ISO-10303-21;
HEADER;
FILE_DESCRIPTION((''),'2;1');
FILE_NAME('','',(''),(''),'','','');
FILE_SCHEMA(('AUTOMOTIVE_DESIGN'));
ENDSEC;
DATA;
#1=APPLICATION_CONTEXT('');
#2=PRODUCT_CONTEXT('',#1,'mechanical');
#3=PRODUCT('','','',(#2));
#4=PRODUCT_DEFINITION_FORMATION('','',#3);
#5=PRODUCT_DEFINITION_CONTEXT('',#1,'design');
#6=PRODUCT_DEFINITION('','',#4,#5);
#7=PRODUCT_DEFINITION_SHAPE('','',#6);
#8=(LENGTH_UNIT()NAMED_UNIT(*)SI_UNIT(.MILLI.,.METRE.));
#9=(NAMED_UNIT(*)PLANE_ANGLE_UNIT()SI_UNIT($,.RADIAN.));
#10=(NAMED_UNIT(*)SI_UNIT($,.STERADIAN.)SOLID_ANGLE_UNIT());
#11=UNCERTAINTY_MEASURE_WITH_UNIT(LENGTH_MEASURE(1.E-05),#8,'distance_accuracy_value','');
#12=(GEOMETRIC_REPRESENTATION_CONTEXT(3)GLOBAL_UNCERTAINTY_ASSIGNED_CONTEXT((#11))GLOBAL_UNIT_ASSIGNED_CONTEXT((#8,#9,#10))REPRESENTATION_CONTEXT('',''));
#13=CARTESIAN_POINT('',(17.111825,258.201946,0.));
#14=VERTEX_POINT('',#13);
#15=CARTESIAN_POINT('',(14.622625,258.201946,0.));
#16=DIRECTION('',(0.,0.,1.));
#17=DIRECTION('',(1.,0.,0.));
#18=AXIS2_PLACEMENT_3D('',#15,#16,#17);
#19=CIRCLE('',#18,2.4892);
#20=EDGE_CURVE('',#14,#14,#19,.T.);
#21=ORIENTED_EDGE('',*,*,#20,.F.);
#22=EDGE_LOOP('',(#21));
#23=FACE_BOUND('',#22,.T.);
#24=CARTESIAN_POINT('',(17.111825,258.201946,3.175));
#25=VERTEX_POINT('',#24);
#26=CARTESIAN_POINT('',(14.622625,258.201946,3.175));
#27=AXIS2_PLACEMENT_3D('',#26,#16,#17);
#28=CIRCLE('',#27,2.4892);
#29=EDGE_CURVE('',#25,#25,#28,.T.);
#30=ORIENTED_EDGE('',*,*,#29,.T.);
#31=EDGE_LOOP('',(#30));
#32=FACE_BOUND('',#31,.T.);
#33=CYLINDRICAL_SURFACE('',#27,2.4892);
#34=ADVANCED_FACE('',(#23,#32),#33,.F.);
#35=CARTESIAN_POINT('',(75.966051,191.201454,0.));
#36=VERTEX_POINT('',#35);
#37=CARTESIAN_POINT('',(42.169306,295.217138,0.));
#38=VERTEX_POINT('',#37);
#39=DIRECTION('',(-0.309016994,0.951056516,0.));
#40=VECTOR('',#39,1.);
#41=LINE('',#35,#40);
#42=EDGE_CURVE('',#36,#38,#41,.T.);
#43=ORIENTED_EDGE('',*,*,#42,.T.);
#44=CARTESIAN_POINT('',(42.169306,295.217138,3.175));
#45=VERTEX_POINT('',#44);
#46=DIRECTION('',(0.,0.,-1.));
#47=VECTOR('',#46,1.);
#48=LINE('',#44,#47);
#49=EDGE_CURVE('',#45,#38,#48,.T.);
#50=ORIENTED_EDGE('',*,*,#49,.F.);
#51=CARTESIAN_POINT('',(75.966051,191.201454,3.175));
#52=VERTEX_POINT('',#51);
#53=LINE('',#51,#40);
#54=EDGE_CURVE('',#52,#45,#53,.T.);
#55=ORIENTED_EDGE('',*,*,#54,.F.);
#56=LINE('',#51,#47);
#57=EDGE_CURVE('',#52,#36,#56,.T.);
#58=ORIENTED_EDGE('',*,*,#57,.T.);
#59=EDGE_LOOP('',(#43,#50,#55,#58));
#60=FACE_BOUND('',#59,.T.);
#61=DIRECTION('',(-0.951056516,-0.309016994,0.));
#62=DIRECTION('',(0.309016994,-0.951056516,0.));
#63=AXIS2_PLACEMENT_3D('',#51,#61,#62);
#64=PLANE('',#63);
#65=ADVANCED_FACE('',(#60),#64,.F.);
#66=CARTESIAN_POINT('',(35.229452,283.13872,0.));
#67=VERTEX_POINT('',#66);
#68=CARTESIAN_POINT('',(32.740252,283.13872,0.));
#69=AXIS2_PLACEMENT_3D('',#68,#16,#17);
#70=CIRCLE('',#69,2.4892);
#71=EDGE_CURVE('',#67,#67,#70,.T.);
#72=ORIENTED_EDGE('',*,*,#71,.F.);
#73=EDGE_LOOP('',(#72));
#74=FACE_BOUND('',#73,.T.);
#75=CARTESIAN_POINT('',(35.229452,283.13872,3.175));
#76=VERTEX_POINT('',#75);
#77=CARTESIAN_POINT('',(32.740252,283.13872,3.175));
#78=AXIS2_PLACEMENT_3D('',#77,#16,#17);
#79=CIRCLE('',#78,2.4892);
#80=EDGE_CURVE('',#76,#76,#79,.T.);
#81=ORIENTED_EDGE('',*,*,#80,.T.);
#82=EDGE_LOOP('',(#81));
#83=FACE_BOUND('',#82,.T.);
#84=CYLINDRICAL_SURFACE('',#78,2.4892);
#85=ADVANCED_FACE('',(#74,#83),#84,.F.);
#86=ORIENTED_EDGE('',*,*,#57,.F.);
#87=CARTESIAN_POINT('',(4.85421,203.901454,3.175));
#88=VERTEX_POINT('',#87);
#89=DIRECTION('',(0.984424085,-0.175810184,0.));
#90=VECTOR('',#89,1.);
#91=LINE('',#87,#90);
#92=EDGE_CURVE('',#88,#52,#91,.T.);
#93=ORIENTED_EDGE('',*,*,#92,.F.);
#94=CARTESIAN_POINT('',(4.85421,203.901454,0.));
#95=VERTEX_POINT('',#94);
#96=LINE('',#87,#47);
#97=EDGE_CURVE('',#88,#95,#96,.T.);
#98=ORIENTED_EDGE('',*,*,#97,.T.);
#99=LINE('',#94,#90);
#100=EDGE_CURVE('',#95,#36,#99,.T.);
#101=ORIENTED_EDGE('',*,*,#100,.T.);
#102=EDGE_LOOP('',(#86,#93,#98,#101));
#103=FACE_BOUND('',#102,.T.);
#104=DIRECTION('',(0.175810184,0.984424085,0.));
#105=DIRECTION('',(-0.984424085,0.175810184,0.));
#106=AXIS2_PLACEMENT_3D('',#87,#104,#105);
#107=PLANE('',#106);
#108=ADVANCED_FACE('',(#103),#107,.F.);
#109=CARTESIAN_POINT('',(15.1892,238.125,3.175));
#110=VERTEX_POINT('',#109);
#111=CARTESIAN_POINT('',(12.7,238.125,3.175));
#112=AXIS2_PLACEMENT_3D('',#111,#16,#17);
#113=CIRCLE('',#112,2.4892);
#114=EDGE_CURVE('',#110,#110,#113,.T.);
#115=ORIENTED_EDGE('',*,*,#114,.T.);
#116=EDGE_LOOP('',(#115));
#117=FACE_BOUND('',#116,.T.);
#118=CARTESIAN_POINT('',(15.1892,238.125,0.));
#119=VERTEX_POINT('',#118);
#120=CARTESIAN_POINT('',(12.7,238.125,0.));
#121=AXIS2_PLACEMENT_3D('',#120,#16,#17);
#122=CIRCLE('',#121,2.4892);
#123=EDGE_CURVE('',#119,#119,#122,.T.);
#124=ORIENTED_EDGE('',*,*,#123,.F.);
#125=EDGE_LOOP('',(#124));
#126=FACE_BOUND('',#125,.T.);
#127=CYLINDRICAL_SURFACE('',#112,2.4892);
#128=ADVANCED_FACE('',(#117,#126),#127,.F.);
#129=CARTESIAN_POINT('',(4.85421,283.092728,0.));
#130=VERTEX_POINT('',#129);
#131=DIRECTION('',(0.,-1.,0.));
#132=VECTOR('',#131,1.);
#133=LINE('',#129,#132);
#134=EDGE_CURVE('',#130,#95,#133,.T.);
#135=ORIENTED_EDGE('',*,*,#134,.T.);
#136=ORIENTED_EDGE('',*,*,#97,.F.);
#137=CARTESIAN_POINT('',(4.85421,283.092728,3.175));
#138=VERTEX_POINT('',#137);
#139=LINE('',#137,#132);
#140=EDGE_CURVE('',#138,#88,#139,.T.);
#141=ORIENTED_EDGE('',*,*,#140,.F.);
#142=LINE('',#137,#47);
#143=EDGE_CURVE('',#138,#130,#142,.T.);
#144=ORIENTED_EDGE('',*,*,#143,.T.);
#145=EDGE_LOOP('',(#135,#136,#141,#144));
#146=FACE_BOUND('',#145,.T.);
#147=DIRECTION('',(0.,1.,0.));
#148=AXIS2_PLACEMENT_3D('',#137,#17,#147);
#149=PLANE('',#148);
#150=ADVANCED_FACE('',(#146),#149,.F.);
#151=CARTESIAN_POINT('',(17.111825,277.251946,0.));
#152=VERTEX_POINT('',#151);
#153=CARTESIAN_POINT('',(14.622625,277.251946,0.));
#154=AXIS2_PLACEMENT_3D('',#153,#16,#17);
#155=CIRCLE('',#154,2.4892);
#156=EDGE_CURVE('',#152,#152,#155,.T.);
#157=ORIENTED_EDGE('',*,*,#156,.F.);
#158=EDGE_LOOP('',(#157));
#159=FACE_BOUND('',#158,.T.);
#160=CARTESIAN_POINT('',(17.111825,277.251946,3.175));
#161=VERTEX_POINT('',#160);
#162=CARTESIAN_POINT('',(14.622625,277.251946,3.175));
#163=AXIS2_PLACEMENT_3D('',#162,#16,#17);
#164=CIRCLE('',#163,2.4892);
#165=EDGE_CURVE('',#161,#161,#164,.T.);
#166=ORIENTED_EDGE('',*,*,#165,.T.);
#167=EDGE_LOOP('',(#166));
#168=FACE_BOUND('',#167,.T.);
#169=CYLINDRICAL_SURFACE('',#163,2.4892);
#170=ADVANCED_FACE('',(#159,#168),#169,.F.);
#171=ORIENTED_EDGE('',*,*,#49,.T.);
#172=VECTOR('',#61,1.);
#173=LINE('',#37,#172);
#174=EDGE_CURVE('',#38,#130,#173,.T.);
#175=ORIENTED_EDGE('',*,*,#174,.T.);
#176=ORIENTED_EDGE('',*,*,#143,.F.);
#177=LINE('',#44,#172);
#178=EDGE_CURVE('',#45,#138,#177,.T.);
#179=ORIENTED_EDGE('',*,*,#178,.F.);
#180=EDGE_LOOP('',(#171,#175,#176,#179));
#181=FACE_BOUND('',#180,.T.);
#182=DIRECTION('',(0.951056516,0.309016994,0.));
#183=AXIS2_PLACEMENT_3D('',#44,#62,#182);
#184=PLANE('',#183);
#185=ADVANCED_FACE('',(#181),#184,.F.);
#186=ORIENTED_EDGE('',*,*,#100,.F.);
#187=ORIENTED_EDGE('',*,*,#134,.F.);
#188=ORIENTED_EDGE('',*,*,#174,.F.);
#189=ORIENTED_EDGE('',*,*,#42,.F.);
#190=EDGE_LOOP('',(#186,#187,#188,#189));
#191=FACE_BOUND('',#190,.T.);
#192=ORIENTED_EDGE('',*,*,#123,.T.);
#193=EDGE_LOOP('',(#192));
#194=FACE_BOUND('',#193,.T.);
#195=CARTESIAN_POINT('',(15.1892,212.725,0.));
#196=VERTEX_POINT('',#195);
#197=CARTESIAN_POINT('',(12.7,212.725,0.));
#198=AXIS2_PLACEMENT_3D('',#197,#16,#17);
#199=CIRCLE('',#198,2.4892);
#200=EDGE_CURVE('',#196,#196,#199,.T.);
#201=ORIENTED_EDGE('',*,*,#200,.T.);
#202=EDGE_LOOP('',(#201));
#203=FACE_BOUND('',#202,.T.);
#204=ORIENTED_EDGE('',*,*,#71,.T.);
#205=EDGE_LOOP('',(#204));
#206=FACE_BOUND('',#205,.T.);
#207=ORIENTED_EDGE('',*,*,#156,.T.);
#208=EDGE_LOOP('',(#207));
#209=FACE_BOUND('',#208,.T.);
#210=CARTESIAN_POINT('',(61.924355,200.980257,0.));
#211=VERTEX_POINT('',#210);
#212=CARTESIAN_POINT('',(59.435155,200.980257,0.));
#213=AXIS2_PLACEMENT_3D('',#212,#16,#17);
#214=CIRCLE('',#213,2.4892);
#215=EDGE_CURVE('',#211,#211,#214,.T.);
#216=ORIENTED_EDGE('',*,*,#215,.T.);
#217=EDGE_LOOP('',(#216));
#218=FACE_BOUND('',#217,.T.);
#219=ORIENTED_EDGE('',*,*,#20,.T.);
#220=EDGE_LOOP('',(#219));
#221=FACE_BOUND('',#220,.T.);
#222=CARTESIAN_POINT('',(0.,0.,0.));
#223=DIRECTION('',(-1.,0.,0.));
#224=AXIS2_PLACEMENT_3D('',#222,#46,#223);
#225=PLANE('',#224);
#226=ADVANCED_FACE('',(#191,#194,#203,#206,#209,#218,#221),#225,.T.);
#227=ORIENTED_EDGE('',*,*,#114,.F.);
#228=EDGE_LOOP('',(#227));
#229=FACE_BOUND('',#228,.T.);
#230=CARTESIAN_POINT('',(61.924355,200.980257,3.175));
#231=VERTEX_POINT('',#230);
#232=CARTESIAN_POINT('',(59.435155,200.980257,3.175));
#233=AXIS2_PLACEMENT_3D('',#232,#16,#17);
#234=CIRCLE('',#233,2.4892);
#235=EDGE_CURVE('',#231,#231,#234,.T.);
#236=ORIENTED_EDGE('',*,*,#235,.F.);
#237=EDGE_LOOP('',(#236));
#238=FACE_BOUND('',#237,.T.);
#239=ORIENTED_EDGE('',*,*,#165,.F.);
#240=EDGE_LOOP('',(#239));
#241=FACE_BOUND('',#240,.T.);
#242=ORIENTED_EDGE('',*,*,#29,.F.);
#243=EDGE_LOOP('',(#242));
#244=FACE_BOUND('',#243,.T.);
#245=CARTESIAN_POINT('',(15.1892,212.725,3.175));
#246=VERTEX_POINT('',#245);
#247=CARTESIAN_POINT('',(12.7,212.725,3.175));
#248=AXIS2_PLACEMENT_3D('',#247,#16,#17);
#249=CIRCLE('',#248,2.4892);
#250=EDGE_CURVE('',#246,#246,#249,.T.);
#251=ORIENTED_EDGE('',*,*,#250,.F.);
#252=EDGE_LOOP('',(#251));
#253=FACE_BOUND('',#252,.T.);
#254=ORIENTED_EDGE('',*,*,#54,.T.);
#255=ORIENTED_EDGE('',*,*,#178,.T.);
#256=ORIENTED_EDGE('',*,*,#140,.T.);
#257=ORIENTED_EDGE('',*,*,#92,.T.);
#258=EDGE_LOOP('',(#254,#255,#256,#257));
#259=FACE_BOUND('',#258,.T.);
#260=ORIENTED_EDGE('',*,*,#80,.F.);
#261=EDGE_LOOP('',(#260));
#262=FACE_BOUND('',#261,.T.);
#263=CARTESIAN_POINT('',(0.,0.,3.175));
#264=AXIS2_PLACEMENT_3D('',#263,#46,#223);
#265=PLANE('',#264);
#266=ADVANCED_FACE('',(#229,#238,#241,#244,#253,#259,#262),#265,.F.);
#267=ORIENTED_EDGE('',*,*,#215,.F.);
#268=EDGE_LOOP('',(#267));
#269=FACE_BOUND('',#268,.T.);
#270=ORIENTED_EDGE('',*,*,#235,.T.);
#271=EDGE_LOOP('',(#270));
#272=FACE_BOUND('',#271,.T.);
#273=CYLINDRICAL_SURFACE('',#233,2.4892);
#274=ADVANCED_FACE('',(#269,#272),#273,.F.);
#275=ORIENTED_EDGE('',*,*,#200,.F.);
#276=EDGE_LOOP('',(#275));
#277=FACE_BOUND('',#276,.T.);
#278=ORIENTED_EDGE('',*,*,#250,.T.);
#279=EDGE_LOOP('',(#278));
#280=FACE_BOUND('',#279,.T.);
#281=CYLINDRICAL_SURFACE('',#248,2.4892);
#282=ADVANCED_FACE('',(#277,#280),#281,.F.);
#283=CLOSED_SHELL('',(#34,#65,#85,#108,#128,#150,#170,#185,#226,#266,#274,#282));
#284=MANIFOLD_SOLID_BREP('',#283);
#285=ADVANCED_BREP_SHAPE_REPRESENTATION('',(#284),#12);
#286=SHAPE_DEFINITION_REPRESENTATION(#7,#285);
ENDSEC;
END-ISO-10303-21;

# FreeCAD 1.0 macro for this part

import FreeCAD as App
import Part
import Sketcher

V = App.Vector
Q = App.Units.Quantity


def add_polygon(sketch, points):
    """Adds a closed chain of lines whose ends are joined by coincident constraints."""
    first, n = sketch.GeometryCount, len(points)
    for a, b in zip(points, points[1:] + points[:1]):
        sketch.addGeometry(Part.LineSegment(App.Vector(*a, 0), App.Vector(*b, 0)), False)
    for i in range(n):
        sketch.addConstraint(Sketcher.Constraint("Coincident", first + i, 2, first + (i + 1) % n, 1))

doc = App.newDocument("Part")
body = doc.addObject("PartDesign::Body", "Body")

sketch1 = doc.addObject("Sketcher::SketchObject", "Sketch")
body.addObject(sketch1)
sketch1.AttachmentSupport = (doc.XY_Plane, [""])
sketch1.MapMode = "FlatFace"
add_polygon(sketch1, [(75.966051, 191.201454), (42.169306, 295.217138), (4.85421, 283.092728), (4.85421, 203.901454)])
sketch1.addConstraint(Sketcher.Constraint("Vertical", 2))
sketch1.addConstraint(Sketcher.Constraint("Perpendicular", 0, 1))
sketch1.addConstraint(Sketcher.Constraint("Angle", 0, Q("108 deg")))
sketch1.addConstraint(Sketcher.Constraint("DistanceY", 3, 2, 2, 2, Q("0.5 in")))
sketch1.addConstraint(Sketcher.Constraint("Distance", 3, Q("72.236998 mm")))
sketch1.addConstraint(Sketcher.Constraint("DistanceY", 2, 2, 2, 1, Q("79.191274 mm")))
sketch1.addConstraint(Sketcher.Constraint("DistanceX", -1, 1, 1, 2, Q("4.85421 mm")))
sketch1.addConstraint(Sketcher.Constraint("DistanceY", -1, 1, 0, 2, Q("295.217138 mm")))
pad1 = doc.addObject("PartDesign::Pad", "Pad")
body.addObject(pad1)
pad1.Profile = sketch1
pad1.Length = Q("0.125 in")

sketch2 = doc.addObject("Sketcher::SketchObject", "Sketch001")
body.addObject(sketch2)
sketch2.AttachmentSupport = (doc.XY_Plane, [""])
sketch2.MapMode = "FlatFace"
sketch2.AttachmentOffset = App.Placement(V(0, 0, 0.125 * 25.4), App.Rotation())
sketch2.addGeometry(Part.Circle(V(32.740252, 283.13872, 0), V(0, 0, 1), 2.4892), False)
sketch2.addGeometry(Part.Circle(V(59.435155, 200.980257, 0), V(0, 0, 1), 2.4892), False)
sketch2.addGeometry(Part.Circle(V(12.7, 238.125, 0), V(0, 0, 1), 2.4892), False)
sketch2.addGeometry(Part.Circle(V(12.7, 212.725, 0), V(0, 0, 1), 2.4892), False)
sketch2.addGeometry(Part.Circle(V(14.622625, 277.251946, 0), V(0, 0, 1), 2.4892), False)
sketch2.addGeometry(Part.Circle(V(14.622625, 258.201946, 0), V(0, 0, 1), 2.4892), False)
sketch2.addConstraint(Sketcher.Constraint("Equal", 0, 1))
sketch2.addConstraint(Sketcher.Constraint("Equal", 1, 2))
sketch2.addConstraint(Sketcher.Constraint("Equal", 2, 3))
sketch2.addConstraint(Sketcher.Constraint("Equal", 3, 4))
sketch2.addConstraint(Sketcher.Constraint("Equal", 4, 5))
sketch2.addConstraint(Sketcher.Constraint("Vertical", 2, 3, 3, 3))
sketch2.addConstraint(Sketcher.Constraint("Vertical", 4, 3, 5, 3))
sketch2.addConstraint(Sketcher.Constraint("Diameter", 0, Q("0.196 in")))
sketch2.addConstraint(Sketcher.Constraint("DistanceY", 3, 3, 2, 3, Q("1 in")))
sketch2.addConstraint(Sketcher.Constraint("DistanceX", -1, 1, 2, 3, Q("0.5 in")))
sketch2.addConstraint(Sketcher.Constraint("DistanceY", 5, 3, 4, 3, Q("0.75 in")))
sketch2.addConstraint(Sketcher.Constraint("DistanceY", -1, 1, 2, 3, Q("9.375 in")))
sketch2.addConstraint(Sketcher.Constraint("DistanceX", -1, 1, 0, 3, Q("32.740252 mm")))
sketch2.addConstraint(Sketcher.Constraint("DistanceY", -1, 1, 0, 3, Q("283.13872 mm")))
sketch2.addConstraint(Sketcher.Constraint("DistanceX", 4, 3, 1, 3, Q("44.812529 mm")))
sketch2.addConstraint(Sketcher.Constraint("DistanceY", 1, 3, 4, 3, Q("76.271689 mm")))
sketch2.addConstraint(Sketcher.Constraint("DistanceX", -1, 1, 1, 3, Q("59.435155 mm")))
sketch2.addConstraint(Sketcher.Constraint("DistanceY", -1, 1, 1, 3, Q("200.980257 mm")))
doc.recompute()
hole = doc.addObject("PartDesign::Hole", "Hole")
body.addObject(hole)
hole.Profile = sketch2
hole.ThreadType = "None"
hole.Diameter = Q("0.196 in")
hole.DepthType = "ThroughAll"

doc.recompute()
